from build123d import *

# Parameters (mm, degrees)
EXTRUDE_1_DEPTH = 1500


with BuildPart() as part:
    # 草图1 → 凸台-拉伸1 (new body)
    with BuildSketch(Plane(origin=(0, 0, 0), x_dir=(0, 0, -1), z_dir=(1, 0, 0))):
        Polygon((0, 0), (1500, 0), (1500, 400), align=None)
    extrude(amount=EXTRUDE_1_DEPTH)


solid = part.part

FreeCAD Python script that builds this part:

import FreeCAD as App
import Part
import Sketcher

doc = App.newDocument("Part")
body = doc.addObject("PartDesign::Body", "Body")

# Sketch on YZ plane
sketch1 = doc.addObject("Sketcher::SketchObject", "Sketch")
body.addObject(sketch1)
sketch1.AttachmentSupport = (doc.YZ_Plane, [""])
sketch1.MapMode = "FlatFace"
sketch1.addGeometry(Part.LineSegment(App.Vector(0, 0, 0), App.Vector(0, -1500, 0)), False)
sketch1.addGeometry(Part.LineSegment(App.Vector(0, -1500, 0), App.Vector(400, -1500, 0)), False)
sketch1.addGeometry(Part.LineSegment(App.Vector(400, -1500, 0), App.Vector(0, 0, 0)), False)
sketch1.addConstraint(Sketcher.Constraint("Coincident", 0, 2, 1, 1))
sketch1.addConstraint(Sketcher.Constraint("Coincident", 1, 2, 2, 1))
sketch1.addConstraint(Sketcher.Constraint("Coincident", 2, 2, 0, 1))
sketch1.addConstraint(Sketcher.Constraint("Vertical", 0))
sketch1.addConstraint(Sketcher.Constraint("Horizontal", 1))
sketch1.addConstraint(Sketcher.Constraint("Coincident", 2, 2, -1, 1))
sketch1.addConstraint(Sketcher.Constraint("DistanceX", 1, 1, 1, 2, 400.0))
sketch1.addConstraint(Sketcher.Constraint("DistanceY", 0, 2, 0, 1, 1500.0))
pad1 = doc.addObject("PartDesign::Pad", "Pad")
body.addObject(pad1)
pad1.Profile = sketch1
pad1.Length = 1500

doc.recompute()
